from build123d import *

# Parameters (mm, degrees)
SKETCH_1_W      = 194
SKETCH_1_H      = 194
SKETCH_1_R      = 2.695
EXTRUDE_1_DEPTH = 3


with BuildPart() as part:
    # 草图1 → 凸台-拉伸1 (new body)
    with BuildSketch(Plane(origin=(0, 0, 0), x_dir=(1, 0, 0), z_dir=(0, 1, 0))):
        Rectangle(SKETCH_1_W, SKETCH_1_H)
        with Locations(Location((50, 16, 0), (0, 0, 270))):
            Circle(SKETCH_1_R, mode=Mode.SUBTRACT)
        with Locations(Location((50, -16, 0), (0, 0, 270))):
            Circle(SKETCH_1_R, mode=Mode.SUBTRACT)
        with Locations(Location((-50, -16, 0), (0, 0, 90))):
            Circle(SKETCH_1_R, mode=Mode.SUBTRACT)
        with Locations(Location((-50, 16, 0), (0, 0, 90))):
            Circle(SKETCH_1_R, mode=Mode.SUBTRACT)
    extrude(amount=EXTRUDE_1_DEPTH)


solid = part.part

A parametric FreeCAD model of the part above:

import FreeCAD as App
import Part
import Sketcher
from FreeCAD import Vector
Q = App.Units.Quantity


def add_polygon(sketch, points):
    """Adds a closed chain of lines whose ends are joined by coincident constraints."""
    first, n = sketch.GeometryCount, len(points)
    for a, b in zip(points, points[1:] + points[:1]):
        sketch.addGeometry(Part.LineSegment(App.Vector(*a, 0), App.Vector(*b, 0)), False)
    for i in range(n):
        sketch.addConstraint(Sketcher.Constraint("Coincident", first + i, 2, first + (i + 1) % n, 1))

doc = App.newDocument("Part")
params = doc.addObject("Spreadsheet::Sheet", "Params")
for row, (alias, value) in enumerate([
    ("sketch1_diameter", "5.39 mm"),
    ("sketch1_width", "194 mm"),
    ("pad1_length", "3 mm"),
], start=1):
    params.set(f"A{row}", alias)
    params.set(f"B{row}", "=" + value)
    params.setAlias(f"B{row}", alias)

body = doc.addObject("PartDesign::Body", "Body")

sketch1 = body.newObject("Sketcher::SketchObject", "Sketch")
sketch1.AttachmentSupport = (doc.getObject("XZ_Plane"), [""])
sketch1.MapMode = "FlatFace"
add_polygon(sketch1, [(-97, -97), (-97, 97), (97, 97), (97, -97)])
sketch1.addGeometry(Part.Circle(Vector(-50, 16, 0), Vector(0, 0, 1), 2.7), False)
sketch1.addGeometry(Part.Circle(Vector(50, 16, 0), Vector(0, 0, 1), 2.7), False)
sketch1.addGeometry(Part.Circle(Vector(-50, -16, 0), Vector(0, 0, 1), 2.7), False)
sketch1.addGeometry(Part.Circle(Vector(50, -16, 0), Vector(0, 0, 1), 2.7), False)
sketch1.addConstraint([
    Sketcher.Constraint("Vertical", 0),
    Sketcher.Constraint("Horizontal", 1),
    Sketcher.Constraint("Vertical", 2),
    Sketcher.Constraint("Horizontal", 3),
    Sketcher.Constraint("Equal", 4, 5),
    Sketcher.Constraint("Equal", 5, 6),
    Sketcher.Constraint("Equal", 6, 7),
    Sketcher.Constraint("Symmetric", 5, 3, 6, 3, -1, 1),
    Sketcher.Constraint("Symmetric", 4, 3, 7, 3, -1, 1),
    Sketcher.Constraint("Symmetric", 0, 2, 2, 2, -1, 1),
    Sketcher.Constraint("Symmetric", 4, 3, 5, 3, -2),
    Sketcher.Constraint("Equal", 3, 0),
    Sketcher.Constraint("Diameter", 4, Q("5.39 mm")),
    Sketcher.Constraint("DistanceX", 1, 1, 1, 2, Q("194 mm")),
    Sketcher.Constraint("DistanceX", 4, 3, -1, 1, Q("50 mm")),
    Sketcher.Constraint("DistanceY", -1, 1, 4, 3, Q("16 mm")),
])
sketch1.setExpression("Constraints[16]", "Params.sketch1_diameter")
sketch1.setExpression("Constraints[17]", "Params.sketch1_width")
pad1 = body.newObject("PartDesign::Pad", "Pad")
pad1.Profile = sketch1
pad1.setExpression("Length", "Params.pad1_length")
pad1.Reversed = True

doc.recompute()
